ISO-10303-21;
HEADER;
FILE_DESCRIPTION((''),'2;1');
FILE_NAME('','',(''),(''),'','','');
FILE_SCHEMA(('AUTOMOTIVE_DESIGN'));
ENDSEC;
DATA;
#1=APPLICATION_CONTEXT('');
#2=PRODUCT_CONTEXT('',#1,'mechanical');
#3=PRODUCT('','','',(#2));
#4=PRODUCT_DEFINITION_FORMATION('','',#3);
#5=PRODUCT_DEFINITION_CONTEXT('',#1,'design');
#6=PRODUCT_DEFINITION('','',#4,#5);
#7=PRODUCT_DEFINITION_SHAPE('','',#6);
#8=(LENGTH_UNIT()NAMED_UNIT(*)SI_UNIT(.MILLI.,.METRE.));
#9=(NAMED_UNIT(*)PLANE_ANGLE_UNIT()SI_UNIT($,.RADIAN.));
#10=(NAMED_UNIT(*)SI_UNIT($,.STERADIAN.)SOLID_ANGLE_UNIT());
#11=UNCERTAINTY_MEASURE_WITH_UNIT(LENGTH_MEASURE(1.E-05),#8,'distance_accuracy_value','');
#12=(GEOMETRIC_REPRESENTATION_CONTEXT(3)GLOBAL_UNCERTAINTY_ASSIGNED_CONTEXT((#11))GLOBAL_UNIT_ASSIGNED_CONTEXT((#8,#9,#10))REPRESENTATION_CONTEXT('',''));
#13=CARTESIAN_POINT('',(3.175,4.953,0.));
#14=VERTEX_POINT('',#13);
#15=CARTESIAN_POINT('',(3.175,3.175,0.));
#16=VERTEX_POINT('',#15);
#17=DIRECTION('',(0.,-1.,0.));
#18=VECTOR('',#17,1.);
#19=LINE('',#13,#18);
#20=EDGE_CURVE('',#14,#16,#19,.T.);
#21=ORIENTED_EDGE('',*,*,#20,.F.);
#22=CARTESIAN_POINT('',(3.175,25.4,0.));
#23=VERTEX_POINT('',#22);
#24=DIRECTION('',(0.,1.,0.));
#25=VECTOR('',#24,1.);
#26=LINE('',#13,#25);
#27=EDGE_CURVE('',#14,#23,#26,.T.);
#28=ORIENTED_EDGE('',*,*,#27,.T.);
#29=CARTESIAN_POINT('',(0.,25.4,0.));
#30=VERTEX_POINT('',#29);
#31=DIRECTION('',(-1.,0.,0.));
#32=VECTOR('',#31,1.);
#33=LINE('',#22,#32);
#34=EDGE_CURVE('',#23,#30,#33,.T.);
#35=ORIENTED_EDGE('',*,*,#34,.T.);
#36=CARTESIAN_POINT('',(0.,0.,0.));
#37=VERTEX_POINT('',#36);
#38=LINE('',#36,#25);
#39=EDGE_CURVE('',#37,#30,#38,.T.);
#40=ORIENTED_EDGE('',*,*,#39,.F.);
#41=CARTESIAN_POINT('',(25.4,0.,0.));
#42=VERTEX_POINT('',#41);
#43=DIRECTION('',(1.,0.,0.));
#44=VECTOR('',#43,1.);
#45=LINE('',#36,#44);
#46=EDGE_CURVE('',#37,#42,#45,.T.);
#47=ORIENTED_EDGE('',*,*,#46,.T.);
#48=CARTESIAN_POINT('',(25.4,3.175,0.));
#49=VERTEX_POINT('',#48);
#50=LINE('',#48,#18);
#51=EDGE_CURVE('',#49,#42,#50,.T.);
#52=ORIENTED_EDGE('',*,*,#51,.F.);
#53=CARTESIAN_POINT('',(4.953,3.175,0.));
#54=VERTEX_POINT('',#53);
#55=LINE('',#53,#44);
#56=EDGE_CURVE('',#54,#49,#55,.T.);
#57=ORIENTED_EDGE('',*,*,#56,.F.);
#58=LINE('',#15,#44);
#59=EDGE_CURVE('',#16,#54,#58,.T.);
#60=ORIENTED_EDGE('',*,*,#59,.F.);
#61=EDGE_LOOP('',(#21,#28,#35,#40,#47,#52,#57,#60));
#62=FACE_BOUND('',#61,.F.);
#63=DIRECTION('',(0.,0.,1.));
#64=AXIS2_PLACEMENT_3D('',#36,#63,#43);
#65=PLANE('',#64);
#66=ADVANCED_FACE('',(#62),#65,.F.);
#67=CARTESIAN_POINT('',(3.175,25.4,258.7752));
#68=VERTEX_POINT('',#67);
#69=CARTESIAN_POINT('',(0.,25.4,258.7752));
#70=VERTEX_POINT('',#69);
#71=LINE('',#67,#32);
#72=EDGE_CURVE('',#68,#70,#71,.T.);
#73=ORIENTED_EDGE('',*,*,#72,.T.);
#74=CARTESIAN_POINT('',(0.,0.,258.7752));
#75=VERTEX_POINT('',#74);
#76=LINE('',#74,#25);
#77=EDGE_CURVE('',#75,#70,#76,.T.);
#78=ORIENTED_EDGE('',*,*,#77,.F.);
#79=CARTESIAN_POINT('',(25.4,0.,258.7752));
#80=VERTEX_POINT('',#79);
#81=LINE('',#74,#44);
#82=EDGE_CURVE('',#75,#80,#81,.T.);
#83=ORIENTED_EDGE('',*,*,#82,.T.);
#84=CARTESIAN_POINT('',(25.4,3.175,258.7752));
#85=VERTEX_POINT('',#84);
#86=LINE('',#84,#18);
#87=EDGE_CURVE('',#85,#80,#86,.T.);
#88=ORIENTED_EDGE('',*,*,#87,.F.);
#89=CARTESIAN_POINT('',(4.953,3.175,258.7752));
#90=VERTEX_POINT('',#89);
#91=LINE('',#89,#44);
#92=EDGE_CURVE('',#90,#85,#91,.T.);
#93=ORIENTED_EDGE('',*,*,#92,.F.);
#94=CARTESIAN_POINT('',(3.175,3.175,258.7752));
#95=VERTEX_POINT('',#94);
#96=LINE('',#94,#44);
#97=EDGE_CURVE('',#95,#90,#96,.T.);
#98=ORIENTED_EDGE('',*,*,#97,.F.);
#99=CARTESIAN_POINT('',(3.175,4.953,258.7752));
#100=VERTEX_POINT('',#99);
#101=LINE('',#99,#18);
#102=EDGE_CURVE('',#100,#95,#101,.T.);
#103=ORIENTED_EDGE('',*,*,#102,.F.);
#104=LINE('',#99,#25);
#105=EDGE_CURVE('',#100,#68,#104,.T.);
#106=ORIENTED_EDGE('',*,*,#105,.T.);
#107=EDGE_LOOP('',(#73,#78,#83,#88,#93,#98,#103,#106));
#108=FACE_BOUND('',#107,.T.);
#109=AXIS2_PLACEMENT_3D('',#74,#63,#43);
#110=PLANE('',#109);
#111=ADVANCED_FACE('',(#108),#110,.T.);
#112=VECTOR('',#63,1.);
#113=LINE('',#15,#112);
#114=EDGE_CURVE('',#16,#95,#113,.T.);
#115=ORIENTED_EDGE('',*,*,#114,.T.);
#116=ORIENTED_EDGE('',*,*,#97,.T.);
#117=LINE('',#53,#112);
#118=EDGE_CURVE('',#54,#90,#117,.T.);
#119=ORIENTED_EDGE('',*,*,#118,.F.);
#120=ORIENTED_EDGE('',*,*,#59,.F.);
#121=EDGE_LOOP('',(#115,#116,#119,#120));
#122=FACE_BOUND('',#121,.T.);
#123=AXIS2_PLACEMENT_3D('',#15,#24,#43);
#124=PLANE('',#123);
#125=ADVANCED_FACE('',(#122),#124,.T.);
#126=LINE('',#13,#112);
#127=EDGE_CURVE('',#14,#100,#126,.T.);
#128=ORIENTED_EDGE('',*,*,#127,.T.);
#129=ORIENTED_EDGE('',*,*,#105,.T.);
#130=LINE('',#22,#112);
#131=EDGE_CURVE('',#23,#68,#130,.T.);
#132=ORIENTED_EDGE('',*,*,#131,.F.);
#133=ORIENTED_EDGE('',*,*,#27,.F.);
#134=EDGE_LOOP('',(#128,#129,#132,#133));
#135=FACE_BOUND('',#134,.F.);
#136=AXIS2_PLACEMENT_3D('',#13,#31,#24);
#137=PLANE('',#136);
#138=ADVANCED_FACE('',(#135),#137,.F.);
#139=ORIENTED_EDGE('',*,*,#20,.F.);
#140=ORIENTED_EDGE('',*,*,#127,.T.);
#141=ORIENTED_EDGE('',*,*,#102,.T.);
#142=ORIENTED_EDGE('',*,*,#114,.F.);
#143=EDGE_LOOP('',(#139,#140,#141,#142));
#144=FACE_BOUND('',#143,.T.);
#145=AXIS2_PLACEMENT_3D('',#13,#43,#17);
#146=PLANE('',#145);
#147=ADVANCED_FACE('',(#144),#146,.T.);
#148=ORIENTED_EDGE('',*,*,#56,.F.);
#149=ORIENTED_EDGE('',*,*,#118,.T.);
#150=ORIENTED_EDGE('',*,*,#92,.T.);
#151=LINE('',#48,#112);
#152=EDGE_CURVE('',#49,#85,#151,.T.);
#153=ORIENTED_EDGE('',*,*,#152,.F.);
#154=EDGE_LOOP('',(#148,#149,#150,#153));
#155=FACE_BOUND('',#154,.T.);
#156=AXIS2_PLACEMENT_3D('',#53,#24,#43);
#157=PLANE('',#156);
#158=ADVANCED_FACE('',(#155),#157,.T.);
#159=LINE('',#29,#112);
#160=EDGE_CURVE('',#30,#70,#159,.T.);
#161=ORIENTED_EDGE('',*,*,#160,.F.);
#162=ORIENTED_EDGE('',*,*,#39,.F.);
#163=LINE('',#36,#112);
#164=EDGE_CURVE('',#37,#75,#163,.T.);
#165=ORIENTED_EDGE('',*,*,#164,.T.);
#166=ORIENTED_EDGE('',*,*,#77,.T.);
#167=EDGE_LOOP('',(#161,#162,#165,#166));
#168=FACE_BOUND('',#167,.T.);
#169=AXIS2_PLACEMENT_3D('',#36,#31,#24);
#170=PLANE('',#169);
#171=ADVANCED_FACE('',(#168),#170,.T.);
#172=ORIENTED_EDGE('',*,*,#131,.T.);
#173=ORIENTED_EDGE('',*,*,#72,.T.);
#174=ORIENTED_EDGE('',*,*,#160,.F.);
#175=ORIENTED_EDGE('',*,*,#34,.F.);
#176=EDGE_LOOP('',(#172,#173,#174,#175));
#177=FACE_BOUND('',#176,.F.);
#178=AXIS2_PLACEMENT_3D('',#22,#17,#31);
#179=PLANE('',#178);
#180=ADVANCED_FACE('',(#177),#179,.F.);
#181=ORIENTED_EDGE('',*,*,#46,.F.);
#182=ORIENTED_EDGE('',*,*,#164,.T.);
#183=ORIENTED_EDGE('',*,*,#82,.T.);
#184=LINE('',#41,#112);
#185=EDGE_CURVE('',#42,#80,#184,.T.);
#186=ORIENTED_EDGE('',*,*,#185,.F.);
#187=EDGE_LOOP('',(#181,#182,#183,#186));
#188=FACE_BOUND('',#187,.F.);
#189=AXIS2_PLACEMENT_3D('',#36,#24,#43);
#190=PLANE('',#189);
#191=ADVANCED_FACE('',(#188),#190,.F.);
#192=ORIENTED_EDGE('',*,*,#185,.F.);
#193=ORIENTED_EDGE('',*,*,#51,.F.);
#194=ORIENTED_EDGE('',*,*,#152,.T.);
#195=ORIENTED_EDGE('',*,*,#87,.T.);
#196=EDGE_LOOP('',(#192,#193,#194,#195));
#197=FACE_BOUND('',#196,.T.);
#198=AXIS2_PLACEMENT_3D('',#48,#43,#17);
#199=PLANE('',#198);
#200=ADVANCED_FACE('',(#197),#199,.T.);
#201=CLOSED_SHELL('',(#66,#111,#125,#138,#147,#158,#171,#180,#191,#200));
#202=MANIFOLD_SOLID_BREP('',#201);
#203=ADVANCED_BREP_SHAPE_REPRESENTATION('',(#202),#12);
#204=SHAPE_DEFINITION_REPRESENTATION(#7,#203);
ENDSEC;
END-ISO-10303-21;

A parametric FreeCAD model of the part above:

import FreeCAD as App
import Part
import Sketcher
Q = App.Units.Quantity

doc = App.newDocument("Part")
params = doc.addObject("Spreadsheet::Sheet", "Params")
for row, (alias, value) in enumerate([
    ("sketch1_width", "1 in"),
    ("sketch1_width2", "0.875 in"),
    ("pad1_length", "10.188 in"),
], start=1):
    params.set(f"A{row}", alias)
    params.set(f"B{row}", "=" + value)
    params.setAlias(f"B{row}", alias)

body = doc.addObject("PartDesign::Body", "Body")

sketch1 = body.newObject("Sketcher::SketchObject", "Sketch")
sketch1.AttachmentSupport = (doc.getObject("XY_Plane"), [""])
sketch1.MapMode = "FlatFace"
sketch1.addGeometry([
    Part.LineSegment(App.Vector(0, 25.4, 0), App.Vector(0, 0, 0)),
    Part.LineSegment(App.Vector(0, 0, 0), App.Vector(25.4, 0, 0)),
    Part.LineSegment(App.Vector(25.4, 0, 0), App.Vector(25.4, 3.175, 0)),
    Part.LineSegment(App.Vector(25.4, 3.175, 0), App.Vector(3.175, 3.175, 0)),
    Part.LineSegment(App.Vector(3.175, 3.175, 0), App.Vector(3.175, 25.4, 0)),
    Part.LineSegment(App.Vector(3.175, 25.4, 0), App.Vector(0, 25.4, 0)),
], False)
sketch1.addConstraint([
    Sketcher.Constraint("Coincident", 0, 2, 1, 1),
    Sketcher.Constraint("Coincident", 1, 2, 2, 1),
    Sketcher.Constraint("Coincident", 2, 2, 3, 1),
    Sketcher.Constraint("Coincident", 3, 2, 4, 1),
    Sketcher.Constraint("Coincident", 4, 2, 5, 1),
    Sketcher.Constraint("Coincident", 5, 2, 0, 1),
    Sketcher.Constraint("Vertical", 0),
    Sketcher.Constraint("Horizontal", 1),
    Sketcher.Constraint("Vertical", 2),
    Sketcher.Constraint("Horizontal", 3),
    Sketcher.Constraint("Vertical", 4),
    Sketcher.Constraint("Horizontal", 5),
    Sketcher.Constraint("Coincident", 0, 2, -1, 1),
    Sketcher.Constraint("Equal", 1, 0),
    Sketcher.Constraint("Equal", 5, 2),
    Sketcher.Constraint("DistanceX", 1, 1, 1, 2, Q("1 in")),
    Sketcher.Constraint("DistanceX", 3, 2, 3, 1, Q("0.875 in")),
])
sketch1.setExpression("Constraints[15]", "Params.sketch1_width")
sketch1.setExpression("Constraints[16]", "Params.sketch1_width2")
pad1 = body.newObject("PartDesign::Pad", "Pad")
pad1.Profile = sketch1
pad1.setExpression("Length", "Params.pad1_length")

doc.recompute()
